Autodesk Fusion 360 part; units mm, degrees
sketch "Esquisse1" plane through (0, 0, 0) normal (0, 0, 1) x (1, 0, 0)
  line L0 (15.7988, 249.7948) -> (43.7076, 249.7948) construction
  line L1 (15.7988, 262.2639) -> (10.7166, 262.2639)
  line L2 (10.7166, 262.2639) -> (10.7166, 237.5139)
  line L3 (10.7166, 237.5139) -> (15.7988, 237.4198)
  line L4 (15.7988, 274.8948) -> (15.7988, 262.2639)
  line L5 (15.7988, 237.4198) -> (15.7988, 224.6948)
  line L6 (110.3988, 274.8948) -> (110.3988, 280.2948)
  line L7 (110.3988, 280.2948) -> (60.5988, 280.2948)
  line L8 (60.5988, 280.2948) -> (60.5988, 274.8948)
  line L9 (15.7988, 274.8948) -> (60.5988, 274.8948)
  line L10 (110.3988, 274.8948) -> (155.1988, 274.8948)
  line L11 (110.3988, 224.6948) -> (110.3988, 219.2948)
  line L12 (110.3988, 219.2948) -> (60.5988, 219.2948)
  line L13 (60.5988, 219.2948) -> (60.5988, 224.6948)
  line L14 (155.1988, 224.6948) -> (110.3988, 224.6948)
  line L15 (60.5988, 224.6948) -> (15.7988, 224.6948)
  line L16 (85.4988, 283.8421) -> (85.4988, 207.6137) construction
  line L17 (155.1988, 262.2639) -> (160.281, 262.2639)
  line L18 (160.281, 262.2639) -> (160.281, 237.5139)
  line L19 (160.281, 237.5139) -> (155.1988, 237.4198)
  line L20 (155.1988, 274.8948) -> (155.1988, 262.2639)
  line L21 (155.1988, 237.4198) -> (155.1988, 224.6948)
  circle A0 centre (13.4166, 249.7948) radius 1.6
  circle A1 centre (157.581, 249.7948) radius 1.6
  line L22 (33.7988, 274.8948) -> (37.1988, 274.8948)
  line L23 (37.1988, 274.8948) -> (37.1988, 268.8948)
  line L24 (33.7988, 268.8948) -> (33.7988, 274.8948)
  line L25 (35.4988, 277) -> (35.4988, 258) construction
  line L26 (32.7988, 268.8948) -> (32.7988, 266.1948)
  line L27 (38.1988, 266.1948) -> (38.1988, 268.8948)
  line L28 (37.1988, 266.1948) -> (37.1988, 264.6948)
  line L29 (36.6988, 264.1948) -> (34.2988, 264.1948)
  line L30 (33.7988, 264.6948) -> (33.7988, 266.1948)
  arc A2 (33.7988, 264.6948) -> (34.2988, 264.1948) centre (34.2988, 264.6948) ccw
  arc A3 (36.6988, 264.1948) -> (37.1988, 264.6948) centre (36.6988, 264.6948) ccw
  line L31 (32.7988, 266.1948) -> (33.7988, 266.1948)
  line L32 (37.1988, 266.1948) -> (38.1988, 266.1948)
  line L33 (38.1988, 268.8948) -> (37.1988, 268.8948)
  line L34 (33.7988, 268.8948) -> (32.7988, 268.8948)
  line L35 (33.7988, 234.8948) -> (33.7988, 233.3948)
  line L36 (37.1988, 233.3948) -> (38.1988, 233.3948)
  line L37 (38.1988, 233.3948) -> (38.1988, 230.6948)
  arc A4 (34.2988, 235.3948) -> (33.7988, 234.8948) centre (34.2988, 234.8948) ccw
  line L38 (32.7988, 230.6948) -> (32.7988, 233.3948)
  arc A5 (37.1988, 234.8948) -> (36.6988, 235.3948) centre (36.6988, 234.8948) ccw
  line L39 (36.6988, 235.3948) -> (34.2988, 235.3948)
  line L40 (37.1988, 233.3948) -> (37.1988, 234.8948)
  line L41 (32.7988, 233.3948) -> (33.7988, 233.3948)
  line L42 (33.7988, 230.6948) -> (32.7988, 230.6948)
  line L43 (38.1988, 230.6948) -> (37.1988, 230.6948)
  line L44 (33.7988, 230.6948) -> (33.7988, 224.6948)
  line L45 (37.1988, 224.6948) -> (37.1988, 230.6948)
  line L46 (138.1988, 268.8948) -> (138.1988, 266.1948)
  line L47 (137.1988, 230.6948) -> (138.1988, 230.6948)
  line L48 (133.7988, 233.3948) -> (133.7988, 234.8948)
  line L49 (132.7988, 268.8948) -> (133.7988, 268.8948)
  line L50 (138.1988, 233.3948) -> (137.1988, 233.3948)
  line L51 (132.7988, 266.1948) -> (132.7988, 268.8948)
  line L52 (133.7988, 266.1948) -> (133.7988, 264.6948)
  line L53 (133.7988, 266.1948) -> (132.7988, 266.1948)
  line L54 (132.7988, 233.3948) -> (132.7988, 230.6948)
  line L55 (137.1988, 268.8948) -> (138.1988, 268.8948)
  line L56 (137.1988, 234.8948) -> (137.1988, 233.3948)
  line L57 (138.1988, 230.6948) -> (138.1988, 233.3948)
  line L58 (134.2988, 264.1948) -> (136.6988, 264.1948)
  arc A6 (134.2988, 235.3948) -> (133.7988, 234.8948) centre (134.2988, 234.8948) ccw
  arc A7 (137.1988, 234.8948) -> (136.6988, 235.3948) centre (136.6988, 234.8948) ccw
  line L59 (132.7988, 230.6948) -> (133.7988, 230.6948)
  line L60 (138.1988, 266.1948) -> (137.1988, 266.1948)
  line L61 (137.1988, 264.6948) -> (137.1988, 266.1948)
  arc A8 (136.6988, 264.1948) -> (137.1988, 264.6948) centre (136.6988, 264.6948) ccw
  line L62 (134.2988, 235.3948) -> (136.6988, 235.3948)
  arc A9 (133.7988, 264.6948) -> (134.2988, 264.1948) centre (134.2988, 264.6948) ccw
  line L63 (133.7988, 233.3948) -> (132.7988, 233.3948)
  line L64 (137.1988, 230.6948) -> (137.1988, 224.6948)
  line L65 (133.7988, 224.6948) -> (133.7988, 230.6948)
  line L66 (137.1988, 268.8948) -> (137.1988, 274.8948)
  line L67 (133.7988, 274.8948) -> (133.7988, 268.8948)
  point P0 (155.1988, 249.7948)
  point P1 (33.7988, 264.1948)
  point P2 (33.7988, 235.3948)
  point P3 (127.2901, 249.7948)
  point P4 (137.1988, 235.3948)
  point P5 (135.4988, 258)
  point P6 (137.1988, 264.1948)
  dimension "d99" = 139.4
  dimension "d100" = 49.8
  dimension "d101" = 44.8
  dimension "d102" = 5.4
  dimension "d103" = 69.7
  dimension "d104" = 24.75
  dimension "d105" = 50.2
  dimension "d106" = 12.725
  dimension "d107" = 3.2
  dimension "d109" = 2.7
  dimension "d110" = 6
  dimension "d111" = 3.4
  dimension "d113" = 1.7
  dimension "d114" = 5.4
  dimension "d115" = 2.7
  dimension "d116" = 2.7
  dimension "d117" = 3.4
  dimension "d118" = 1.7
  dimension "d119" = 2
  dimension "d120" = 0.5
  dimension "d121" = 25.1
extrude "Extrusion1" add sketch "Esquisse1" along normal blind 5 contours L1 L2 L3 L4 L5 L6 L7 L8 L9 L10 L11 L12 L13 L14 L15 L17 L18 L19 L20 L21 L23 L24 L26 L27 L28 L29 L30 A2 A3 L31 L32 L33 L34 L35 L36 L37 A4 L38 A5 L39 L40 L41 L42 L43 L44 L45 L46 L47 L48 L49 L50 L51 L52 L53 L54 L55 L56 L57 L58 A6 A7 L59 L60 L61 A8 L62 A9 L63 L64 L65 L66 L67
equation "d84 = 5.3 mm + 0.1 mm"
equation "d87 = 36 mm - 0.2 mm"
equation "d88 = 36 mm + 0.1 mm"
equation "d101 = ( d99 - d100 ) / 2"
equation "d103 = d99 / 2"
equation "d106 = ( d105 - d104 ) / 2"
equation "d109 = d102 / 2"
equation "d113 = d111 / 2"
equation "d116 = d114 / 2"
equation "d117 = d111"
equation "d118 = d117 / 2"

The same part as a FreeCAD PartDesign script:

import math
import FreeCAD as App
import Part
import Sketcher
Q = App.Units.Quantity

doc = App.newDocument("Part")
body = doc.addObject("PartDesign::Body", "Body")

# Sketch on XY plane
sketch1 = body.newObject("Sketcher::SketchObject", "Sketch")
sketch1.AttachmentSupport = (doc.getObject("XY_Plane"), [""])
sketch1.MapMode = "FlatFace"
sketch1.addGeometry(Part.LineSegment(App.Vector(15.8, 274.9, 0), App.Vector(15.8, 262.3, 0)), False)
sketch1.addGeometry(Part.LineSegment(App.Vector(15.8, 262.3, 0), App.Vector(10.7, 262.3, 0)), False)
sketch1.addGeometry(Part.LineSegment(App.Vector(10.7, 262.3, 0), App.Vector(10.7, 237.5, 0)), False)
sketch1.addGeometry(Part.LineSegment(App.Vector(10.7, 237.5, 0), App.Vector(15.8, 237.4, 0)), False)
sketch1.addGeometry(Part.LineSegment(App.Vector(15.8, 237.4, 0), App.Vector(15.8, 224.7, 0)), False)
sketch1.addGeometry(Part.LineSegment(App.Vector(15.8, 224.7, 0), App.Vector(33.8, 224.7, 0)), False)
sketch1.addGeometry(Part.LineSegment(App.Vector(33.8, 224.7, 0), App.Vector(33.8, 230.7, 0)), False)
sketch1.addGeometry(Part.LineSegment(App.Vector(33.8, 230.7, 0), App.Vector(32.8, 230.7, 0)), False)
sketch1.addGeometry(Part.LineSegment(App.Vector(32.8, 230.7, 0), App.Vector(32.8, 233.4, 0)), False)
sketch1.addGeometry(Part.LineSegment(App.Vector(32.8, 233.4, 0), App.Vector(33.8, 233.4, 0)), False)
sketch1.addGeometry(Part.LineSegment(App.Vector(33.8, 233.4, 0), App.Vector(33.8, 234.9, 0)), False)
sketch1.addGeometry(Part.ArcOfCircle(Part.Circle(App.Vector(34.3, 234.9, 0), App.Vector(0, 0, 1), 0.5), math.radians(90), math.radians(180)), False)
sketch1.addGeometry(Part.LineSegment(App.Vector(34.3, 235.4, 0), App.Vector(36.7, 235.4, 0)), False)
sketch1.addGeometry(Part.ArcOfCircle(Part.Circle(App.Vector(36.7, 234.9, 0), App.Vector(0, 0, 1), 0.5), math.radians(0), math.radians(90)), False)
sketch1.addGeometry(Part.LineSegment(App.Vector(37.2, 234.9, 0), App.Vector(37.2, 233.4, 0)), False)
sketch1.addGeometry(Part.LineSegment(App.Vector(37.2, 233.4, 0), App.Vector(38.2, 233.4, 0)), False)
sketch1.addGeometry(Part.LineSegment(App.Vector(38.2, 233.4, 0), App.Vector(38.2, 230.7, 0)), False)
sketch1.addGeometry(Part.LineSegment(App.Vector(38.2, 230.7, 0), App.Vector(37.2, 230.7, 0)), False)
sketch1.addGeometry(Part.LineSegment(App.Vector(37.2, 230.7, 0), App.Vector(37.2, 224.7, 0)), False)
sketch1.addGeometry(Part.LineSegment(App.Vector(37.2, 224.7, 0), App.Vector(60.6, 224.7, 0)), False)
sketch1.addGeometry(Part.LineSegment(App.Vector(60.6, 224.7, 0), App.Vector(60.6, 219.3, 0)), False)
sketch1.addGeometry(Part.LineSegment(App.Vector(60.6, 219.3, 0), App.Vector(110.4, 219.3, 0)), False)
sketch1.addGeometry(Part.LineSegment(App.Vector(110.4, 219.3, 0), App.Vector(110.4, 224.7, 0)), False)
sketch1.addGeometry(Part.LineSegment(App.Vector(110.4, 224.7, 0), App.Vector(133.8, 224.7, 0)), False)
sketch1.addGeometry(Part.LineSegment(App.Vector(133.8, 224.7, 0), App.Vector(133.8, 230.7, 0)), False)
sketch1.addGeometry(Part.LineSegment(App.Vector(133.8, 230.7, 0), App.Vector(132.8, 230.7, 0)), False)
sketch1.addGeometry(Part.LineSegment(App.Vector(132.8, 230.7, 0), App.Vector(132.8, 233.4, 0)), False)
sketch1.addGeometry(Part.LineSegment(App.Vector(132.8, 233.4, 0), App.Vector(133.8, 233.4, 0)), False)
sketch1.addGeometry(Part.LineSegment(App.Vector(133.8, 233.4, 0), App.Vector(133.8, 234.9, 0)), False)
sketch1.addGeometry(Part.ArcOfCircle(Part.Circle(App.Vector(134.3, 234.9, 0), App.Vector(0, 0, 1), 0.5), math.radians(90), math.radians(180)), False)
sketch1.addGeometry(Part.LineSegment(App.Vector(134.3, 235.4, 0), App.Vector(136.7, 235.4, 0)), False)
sketch1.addGeometry(Part.ArcOfCircle(Part.Circle(App.Vector(136.7, 234.9, 0), App.Vector(0, 0, 1), 0.5), math.radians(0), math.radians(90)), False)
sketch1.addGeometry(Part.LineSegment(App.Vector(137.2, 234.9, 0), App.Vector(137.2, 233.4, 0)), False)
sketch1.addGeometry(Part.LineSegment(App.Vector(137.2, 233.4, 0), App.Vector(138.2, 233.4, 0)), False)
sketch1.addGeometry(Part.LineSegment(App.Vector(138.2, 233.4, 0), App.Vector(138.2, 230.7, 0)), False)
sketch1.addGeometry(Part.LineSegment(App.Vector(138.2, 230.7, 0), App.Vector(137.2, 230.7, 0)), False)
sketch1.addGeometry(Part.LineSegment(App.Vector(137.2, 230.7, 0), App.Vector(137.2, 224.7, 0)), False)
sketch1.addGeometry(Part.LineSegment(App.Vector(137.2, 224.7, 0), App.Vector(155.2, 224.7, 0)), False)
sketch1.addGeometry(Part.LineSegment(App.Vector(155.2, 224.7, 0), App.Vector(155.2, 237.4, 0)), False)
sketch1.addGeometry(Part.LineSegment(App.Vector(155.2, 237.4, 0), App.Vector(160.3, 237.5, 0)), False)
sketch1.addGeometry(Part.LineSegment(App.Vector(160.3, 237.5, 0), App.Vector(160.3, 262.3, 0)), False)
sketch1.addGeometry(Part.LineSegment(App.Vector(160.3, 262.3, 0), App.Vector(155.2, 262.3, 0)), False)
sketch1.addGeometry(Part.LineSegment(App.Vector(155.2, 262.3, 0), App.Vector(155.2, 274.9, 0)), False)
sketch1.addGeometry(Part.LineSegment(App.Vector(155.2, 274.9, 0), App.Vector(137.2, 274.9, 0)), False)
sketch1.addGeometry(Part.LineSegment(App.Vector(137.2, 274.9, 0), App.Vector(137.2, 268.9, 0)), False)
sketch1.addGeometry(Part.LineSegment(App.Vector(137.2, 268.9, 0), App.Vector(138.2, 268.9, 0)), False)
sketch1.addGeometry(Part.LineSegment(App.Vector(138.2, 268.9, 0), App.Vector(138.2, 266.2, 0)), False)
sketch1.addGeometry(Part.LineSegment(App.Vector(138.2, 266.2, 0), App.Vector(137.2, 266.2, 0)), False)
sketch1.addGeometry(Part.LineSegment(App.Vector(137.2, 266.2, 0), App.Vector(137.2, 264.7, 0)), False)
sketch1.addGeometry(Part.ArcOfCircle(Part.Circle(App.Vector(136.7, 264.7, 0), App.Vector(0, 0, 1), 0.5), math.radians(-90), math.radians(0)), False)
sketch1.addGeometry(Part.LineSegment(App.Vector(136.7, 264.2, 0), App.Vector(134.3, 264.2, 0)), False)
sketch1.addGeometry(Part.ArcOfCircle(Part.Circle(App.Vector(134.3, 264.7, 0), App.Vector(0, 0, 1), 0.5), math.radians(180), math.radians(270)), False)
sketch1.addGeometry(Part.LineSegment(App.Vector(133.8, 264.7, 0), App.Vector(133.8, 266.2, 0)), False)
sketch1.addGeometry(Part.LineSegment(App.Vector(133.8, 266.2, 0), App.Vector(132.8, 266.2, 0)), False)
sketch1.addGeometry(Part.LineSegment(App.Vector(132.8, 266.2, 0), App.Vector(132.8, 268.9, 0)), False)
sketch1.addGeometry(Part.LineSegment(App.Vector(132.8, 268.9, 0), App.Vector(133.8, 268.9, 0)), False)
sketch1.addGeometry(Part.LineSegment(App.Vector(133.8, 268.9, 0), App.Vector(133.8, 274.9, 0)), False)
sketch1.addGeometry(Part.LineSegment(App.Vector(133.8, 274.9, 0), App.Vector(110.4, 274.9, 0)), False)
sketch1.addGeometry(Part.LineSegment(App.Vector(110.4, 274.9, 0), App.Vector(110.4, 280.3, 0)), False)
sketch1.addGeometry(Part.LineSegment(App.Vector(110.4, 280.3, 0), App.Vector(60.6, 280.3, 0)), False)
sketch1.addGeometry(Part.LineSegment(App.Vector(60.6, 280.3, 0), App.Vector(60.6, 274.9, 0)), False)
sketch1.addGeometry(Part.LineSegment(App.Vector(60.6, 274.9, 0), App.Vector(37.2, 274.9, 0)), False)
sketch1.addGeometry(Part.LineSegment(App.Vector(37.2, 274.9, 0), App.Vector(37.2, 268.9, 0)), False)
sketch1.addGeometry(Part.LineSegment(App.Vector(37.2, 268.9, 0), App.Vector(38.2, 268.9, 0)), False)
sketch1.addGeometry(Part.LineSegment(App.Vector(38.2, 268.9, 0), App.Vector(38.2, 266.2, 0)), False)
sketch1.addGeometry(Part.LineSegment(App.Vector(38.2, 266.2, 0), App.Vector(37.2, 266.2, 0)), False)
sketch1.addGeometry(Part.LineSegment(App.Vector(37.2, 266.2, 0), App.Vector(37.2, 264.7, 0)), False)
sketch1.addGeometry(Part.ArcOfCircle(Part.Circle(App.Vector(36.7, 264.7, 0), App.Vector(0, 0, 1), 0.5), math.radians(-90), math.radians(0)), False)
sketch1.addGeometry(Part.LineSegment(App.Vector(36.7, 264.2, 0), App.Vector(34.3, 264.2, 0)), False)
sketch1.addGeometry(Part.ArcOfCircle(Part.Circle(App.Vector(34.3, 264.7, 0), App.Vector(0, 0, 1), 0.5), math.radians(180), math.radians(270)), False)
sketch1.addGeometry(Part.LineSegment(App.Vector(33.8, 264.7, 0), App.Vector(33.8, 266.2, 0)), False)
sketch1.addGeometry(Part.LineSegment(App.Vector(33.8, 266.2, 0), App.Vector(32.8, 266.2, 0)), False)
sketch1.addGeometry(Part.LineSegment(App.Vector(32.8, 266.2, 0), App.Vector(32.8, 268.9, 0)), False)
sketch1.addGeometry(Part.LineSegment(App.Vector(32.8, 268.9, 0), App.Vector(33.8, 268.9, 0)), False)
sketch1.addGeometry(Part.LineSegment(App.Vector(33.8, 268.9, 0), App.Vector(33.8, 274.9, 0)), False)
sketch1.addGeometry(Part.LineSegment(App.Vector(33.8, 274.9, 0), App.Vector(15.8, 274.9, 0)), False)
sketch1.addGeometry(Part.Circle(App.Vector(13.4, 249.8, 0), App.Vector(0, 0, 1), 1.6), False)
sketch1.addGeometry(Part.Circle(App.Vector(157.6, 249.8, 0), App.Vector(0, 0, 1), 1.6), False)
sketch1.addConstraint(Sketcher.Constraint("Coincident", 0, 2, 1, 1))
sketch1.addConstraint(Sketcher.Constraint("Coincident", 1, 2, 2, 1))
sketch1.addConstraint(Sketcher.Constraint("Coincident", 2, 2, 3, 1))
sketch1.addConstraint(Sketcher.Constraint("Coincident", 3, 2, 4, 1))
sketch1.addConstraint(Sketcher.Constraint("Coincident", 4, 2, 5, 1))
sketch1.addConstraint(Sketcher.Constraint("Coincident", 5, 2, 6, 1))
sketch1.addConstraint(Sketcher.Constraint("Coincident", 6, 2, 7, 1))
sketch1.addConstraint(Sketcher.Constraint("Coincident", 7, 2, 8, 1))
sketch1.addConstraint(Sketcher.Constraint("Coincident", 8, 2, 9, 1))
sketch1.addConstraint(Sketcher.Constraint("Coincident", 9, 2, 10, 1))
sketch1.addConstraint(Sketcher.Constraint("Tangent", 10, 2, 11, 2))
sketch1.addConstraint(Sketcher.Constraint("Tangent", 11, 1, 12, 1))
sketch1.addConstraint(Sketcher.Constraint("Tangent", 12, 2, 13, 2))
sketch1.addConstraint(Sketcher.Constraint("Tangent", 13, 1, 14, 1))
sketch1.addConstraint(Sketcher.Constraint("Coincident", 14, 2, 15, 1))
sketch1.addConstraint(Sketcher.Constraint("Coincident", 15, 2, 16, 1))
sketch1.addConstraint(Sketcher.Constraint("Coincident", 16, 2, 17, 1))
sketch1.addConstraint(Sketcher.Constraint("Coincident", 17, 2, 18, 1))
sketch1.addConstraint(Sketcher.Constraint("Coincident", 18, 2, 19, 1))
sketch1.addConstraint(Sketcher.Constraint("Coincident", 19, 2, 20, 1))
sketch1.addConstraint(Sketcher.Constraint("Coincident", 20, 2, 21, 1))
sketch1.addConstraint(Sketcher.Constraint("Coincident", 21, 2, 22, 1))
sketch1.addConstraint(Sketcher.Constraint("Coincident", 22, 2, 23, 1))
sketch1.addConstraint(Sketcher.Constraint("Coincident", 23, 2, 24, 1))
sketch1.addConstraint(Sketcher.Constraint("Coincident", 24, 2, 25, 1))
sketch1.addConstraint(Sketcher.Constraint("Coincident", 25, 2, 26, 1))
sketch1.addConstraint(Sketcher.Constraint("Coincident", 26, 2, 27, 1))
sketch1.addConstraint(Sketcher.Constraint("Coincident", 27, 2, 28, 1))
sketch1.addConstraint(Sketcher.Constraint("Tangent", 28, 2, 29, 2))
sketch1.addConstraint(Sketcher.Constraint("Tangent", 29, 1, 30, 1))
sketch1.addConstraint(Sketcher.Constraint("Tangent", 30, 2, 31, 2))
sketch1.addConstraint(Sketcher.Constraint("Tangent", 31, 1, 32, 1))
sketch1.addConstraint(Sketcher.Constraint("Coincident", 32, 2, 33, 1))
sketch1.addConstraint(Sketcher.Constraint("Coincident", 33, 2, 34, 1))
sketch1.addConstraint(Sketcher.Constraint("Coincident", 34, 2, 35, 1))
sketch1.addConstraint(Sketcher.Constraint("Coincident", 35, 2, 36, 1))
sketch1.addConstraint(Sketcher.Constraint("Coincident", 36, 2, 37, 1))
sketch1.addConstraint(Sketcher.Constraint("Coincident", 37, 2, 38, 1))
sketch1.addConstraint(Sketcher.Constraint("Coincident", 38, 2, 39, 1))
sketch1.addConstraint(Sketcher.Constraint("Coincident", 39, 2, 40, 1))
sketch1.addConstraint(Sketcher.Constraint("Coincident", 40, 2, 41, 1))
sketch1.addConstraint(Sketcher.Constraint("Coincident", 41, 2, 42, 1))
sketch1.addConstraint(Sketcher.Constraint("Coincident", 42, 2, 43, 1))
sketch1.addConstraint(Sketcher.Constraint("Coincident", 43, 2, 44, 1))
sketch1.addConstraint(Sketcher.Constraint("Coincident", 44, 2, 45, 1))
sketch1.addConstraint(Sketcher.Constraint("Coincident", 45, 2, 46, 1))
sketch1.addConstraint(Sketcher.Constraint("Coincident", 46, 2, 47, 1))
sketch1.addConstraint(Sketcher.Constraint("Coincident", 47, 2, 48, 1))
sketch1.addConstraint(Sketcher.Constraint("Tangent", 48, 2, 49, 2))
sketch1.addConstraint(Sketcher.Constraint("Tangent", 49, 1, 50, 1))
sketch1.addConstraint(Sketcher.Constraint("Tangent", 50, 2, 51, 2))
sketch1.addConstraint(Sketcher.Constraint("Tangent", 51, 1, 52, 1))
sketch1.addConstraint(Sketcher.Constraint("Coincident", 52, 2, 53, 1))
sketch1.addConstraint(Sketcher.Constraint("Coincident", 53, 2, 54, 1))
sketch1.addConstraint(Sketcher.Constraint("Coincident", 54, 2, 55, 1))
sketch1.addConstraint(Sketcher.Constraint("Coincident", 55, 2, 56, 1))
sketch1.addConstraint(Sketcher.Constraint("Coincident", 56, 2, 57, 1))
sketch1.addConstraint(Sketcher.Constraint("Coincident", 57, 2, 58, 1))
sketch1.addConstraint(Sketcher.Constraint("Coincident", 58, 2, 59, 1))
sketch1.addConstraint(Sketcher.Constraint("Coincident", 59, 2, 60, 1))
sketch1.addConstraint(Sketcher.Constraint("Coincident", 60, 2, 61, 1))
sketch1.addConstraint(Sketcher.Constraint("Coincident", 61, 2, 62, 1))
sketch1.addConstraint(Sketcher.Constraint("Coincident", 62, 2, 63, 1))
sketch1.addConstraint(Sketcher.Constraint("Coincident", 63, 2, 64, 1))
sketch1.addConstraint(Sketcher.Constraint("Coincident", 64, 2, 65, 1))
sketch1.addConstraint(Sketcher.Constraint("Coincident", 65, 2, 66, 1))
sketch1.addConstraint(Sketcher.Constraint("Tangent", 66, 2, 67, 2))
sketch1.addConstraint(Sketcher.Constraint("Tangent", 67, 1, 68, 1))
sketch1.addConstraint(Sketcher.Constraint("Tangent", 68, 2, 69, 2))
sketch1.addConstraint(Sketcher.Constraint("Tangent", 69, 1, 70, 1))
sketch1.addConstraint(Sketcher.Constraint("Coincident", 70, 2, 71, 1))
sketch1.addConstraint(Sketcher.Constraint("Coincident", 71, 2, 72, 1))
sketch1.addConstraint(Sketcher.Constraint("Coincident", 72, 2, 73, 1))
sketch1.addConstraint(Sketcher.Constraint("Coincident", 73, 2, 74, 1))
sketch1.addConstraint(Sketcher.Constraint("Coincident", 74, 2, 75, 1))
sketch1.addConstraint(Sketcher.Constraint("Coincident", 75, 2, 0, 1))
sketch1.addConstraint(Sketcher.Constraint("Vertical", 0))
sketch1.addConstraint(Sketcher.Constraint("Horizontal", 1))
sketch1.addConstraint(Sketcher.Constraint("Vertical", 2))
sketch1.addConstraint(Sketcher.Constraint("Vertical", 4))
sketch1.addConstraint(Sketcher.Constraint("Horizontal", 5))
sketch1.addConstraint(Sketcher.Constraint("Vertical", 6))
sketch1.addConstraint(Sketcher.Constraint("Horizontal", 7))
sketch1.addConstraint(Sketcher.Constraint("Vertical", 8))
sketch1.addConstraint(Sketcher.Constraint("Horizontal", 9))
sketch1.addConstraint(Sketcher.Constraint("Vertical", 10))
sketch1.addConstraint(Sketcher.Constraint("Horizontal", 12))
sketch1.addConstraint(Sketcher.Constraint("Vertical", 14))
sketch1.addConstraint(Sketcher.Constraint("Horizontal", 15))
sketch1.addConstraint(Sketcher.Constraint("Vertical", 16))
sketch1.addConstraint(Sketcher.Constraint("Horizontal", 17))
sketch1.addConstraint(Sketcher.Constraint("Vertical", 18))
sketch1.addConstraint(Sketcher.Constraint("Horizontal", 19))
sketch1.addConstraint(Sketcher.Constraint("Vertical", 20))
sketch1.addConstraint(Sketcher.Constraint("Horizontal", 21))
sketch1.addConstraint(Sketcher.Constraint("Vertical", 22))
sketch1.addConstraint(Sketcher.Constraint("Horizontal", 23))
sketch1.addConstraint(Sketcher.Constraint("Vertical", 24))
sketch1.addConstraint(Sketcher.Constraint("Horizontal", 25))
sketch1.addConstraint(Sketcher.Constraint("Vertical", 26))
sketch1.addConstraint(Sketcher.Constraint("Horizontal", 27))
sketch1.addConstraint(Sketcher.Constraint("Vertical", 28))
sketch1.addConstraint(Sketcher.Constraint("Horizontal", 30))
sketch1.addConstraint(Sketcher.Constraint("Vertical", 32))
sketch1.addConstraint(Sketcher.Constraint("Horizontal", 33))
sketch1.addConstraint(Sketcher.Constraint("Vertical", 34))
sketch1.addConstraint(Sketcher.Constraint("Horizontal", 35))
sketch1.addConstraint(Sketcher.Constraint("Vertical", 36))
sketch1.addConstraint(Sketcher.Constraint("Horizontal", 37))
sketch1.addConstraint(Sketcher.Constraint("Vertical", 38))
sketch1.addConstraint(Sketcher.Constraint("Vertical", 40))
sketch1.addConstraint(Sketcher.Constraint("Horizontal", 41))
sketch1.addConstraint(Sketcher.Constraint("Vertical", 42))
sketch1.addConstraint(Sketcher.Constraint("Horizontal", 43))
sketch1.addConstraint(Sketcher.Constraint("Vertical", 44))
sketch1.addConstraint(Sketcher.Constraint("Horizontal", 45))
sketch1.addConstraint(Sketcher.Constraint("Vertical", 46))
sketch1.addConstraint(Sketcher.Constraint("Horizontal", 47))
sketch1.addConstraint(Sketcher.Constraint("Vertical", 48))
sketch1.addConstraint(Sketcher.Constraint("Horizontal", 50))
sketch1.addConstraint(Sketcher.Constraint("Vertical", 52))
sketch1.addConstraint(Sketcher.Constraint("Horizontal", 53))
sketch1.addConstraint(Sketcher.Constraint("Vertical", 54))
sketch1.addConstraint(Sketcher.Constraint("Horizontal", 55))
sketch1.addConstraint(Sketcher.Constraint("Vertical", 56))
sketch1.addConstraint(Sketcher.Constraint("Horizontal", 57))
sketch1.addConstraint(Sketcher.Constraint("Vertical", 58))
sketch1.addConstraint(Sketcher.Constraint("Horizontal", 59))
sketch1.addConstraint(Sketcher.Constraint("Vertical", 60))
sketch1.addConstraint(Sketcher.Constraint("Horizontal", 61))
sketch1.addConstraint(Sketcher.Constraint("Vertical", 62))
sketch1.addConstraint(Sketcher.Constraint("Horizontal", 63))
sketch1.addConstraint(Sketcher.Constraint("Vertical", 64))
sketch1.addConstraint(Sketcher.Constraint("Horizontal", 65))
sketch1.addConstraint(Sketcher.Constraint("Vertical", 66))
sketch1.addConstraint(Sketcher.Constraint("Horizontal", 68))
sketch1.addConstraint(Sketcher.Constraint("Vertical", 70))
sketch1.addConstraint(Sketcher.Constraint("Horizontal", 71))
sketch1.addConstraint(Sketcher.Constraint("Vertical", 72))
sketch1.addConstraint(Sketcher.Constraint("Horizontal", 73))
sketch1.addConstraint(Sketcher.Constraint("Vertical", 74))
sketch1.addConstraint(Sketcher.Constraint("Horizontal", 75))
sketch1.addConstraint(Sketcher.Constraint("Equal", 11, 13))
sketch1.addConstraint(Sketcher.Constraint("Equal", 13, 29))
sketch1.addConstraint(Sketcher.Constraint("Equal", 29, 31))
sketch1.addConstraint(Sketcher.Constraint("Equal", 31, 49))
sketch1.addConstraint(Sketcher.Constraint("Equal", 49, 51))
sketch1.addConstraint(Sketcher.Constraint("Equal", 51, 67))
sketch1.addConstraint(Sketcher.Constraint("Equal", 67, 69))
sketch1.addConstraint(Sketcher.Constraint("Equal", 76, 77))
sketch1.addConstraint(Sketcher.Constraint("Horizontal", 13, 3, 29, 3))
sketch1.addConstraint(Sketcher.Constraint("Horizontal", 51, 3, 67, 3))
sketch1.addConstraint(Sketcher.Constraint("Horizontal", 76, 3, 77, 3))
sketch1.addConstraint(Sketcher.Constraint("Horizontal", 9, 2, 14, 2))
sketch1.addConstraint(Sketcher.Constraint("Horizontal", 7, 2, 16, 2))
sketch1.addConstraint(Sketcher.Constraint("Horizontal", 5, 2, 18, 2))
sketch1.addConstraint(Sketcher.Constraint("Horizontal", 19, 2, 22, 2))
sketch1.addConstraint(Sketcher.Constraint("Horizontal", 17, 2, 24, 2))
sketch1.addConstraint(Sketcher.Constraint("Horizontal", 15, 2, 26, 2))
sketch1.addConstraint(Sketcher.Constraint("Horizontal", 27, 2, 32, 2))
sketch1.addConstraint(Sketcher.Constraint("Horizontal", 25, 2, 34, 2))
sketch1.addConstraint(Sketcher.Constraint("Horizontal", 23, 2, 36, 2))
sketch1.addConstraint(Sketcher.Constraint("Horizontal", 3, 2, 38, 2))
sketch1.addConstraint(Sketcher.Constraint("Horizontal", 2, 2, 39, 2))
sketch1.addConstraint(Sketcher.Constraint("Horizontal", 1, 2, 40, 2))
sketch1.addConstraint(Sketcher.Constraint("Horizontal", 47, 2, 52, 2))
sketch1.addConstraint(Sketcher.Constraint("Horizontal", 45, 2, 54, 2))
sketch1.addConstraint(Sketcher.Constraint("Horizontal", 43, 2, 56, 2))
sketch1.addConstraint(Sketcher.Constraint("Horizontal", 57, 2, 60, 2))
sketch1.addConstraint(Sketcher.Constraint("Horizontal", 55, 2, 62, 2))
sketch1.addConstraint(Sketcher.Constraint("Horizontal", 53, 2, 64, 2))
sketch1.addConstraint(Sketcher.Constraint("Horizontal", 65, 2, 70, 2))
sketch1.addConstraint(Sketcher.Constraint("Horizontal", 63, 2, 72, 2))
sketch1.addConstraint(Sketcher.Constraint("Horizontal", 61, 2, 74, 2))
sketch1.addConstraint(Sketcher.Constraint("Vertical", 31, 3, 49, 3))
sketch1.addConstraint(Sketcher.Constraint("Vertical", 29, 3, 51, 3))
sketch1.addConstraint(Sketcher.Constraint("Vertical", 13, 3, 67, 3))
sketch1.addConstraint(Sketcher.Constraint("Vertical", 11, 3, 69, 3))
sketch1.addConstraint(Sketcher.Constraint("Vertical", 0, 2, 3, 2))
sketch1.addConstraint(Sketcher.Constraint("Vertical", 6, 2, 9, 2))
sketch1.addConstraint(Sketcher.Constraint("Vertical", 14, 2, 17, 2))
sketch1.addConstraint(Sketcher.Constraint("Vertical", 24, 2, 27, 2))
sketch1.addConstraint(Sketcher.Constraint("Vertical", 32, 2, 35, 2))
sketch1.addConstraint(Sketcher.Constraint("Vertical", 38, 2, 41, 2))
sketch1.addConstraint(Sketcher.Constraint("Vertical", 36, 2, 43, 2))
sketch1.addConstraint(Sketcher.Constraint("Vertical", 34, 2, 45, 2))
sketch1.addConstraint(Sketcher.Constraint("Vertical", 26, 2, 53, 2))
sketch1.addConstraint(Sketcher.Constraint("Vertical", 52, 2, 55, 2))
sketch1.addConstraint(Sketcher.Constraint("Vertical", 22, 2, 57, 2))
sketch1.addConstraint(Sketcher.Constraint("Vertical", 20, 2, 59, 2))
sketch1.addConstraint(Sketcher.Constraint("Vertical", 18, 2, 61, 2))
sketch1.addConstraint(Sketcher.Constraint("Vertical", 16, 2, 63, 2))
sketch1.addConstraint(Sketcher.Constraint("Vertical", 8, 2, 71, 2))
sketch1.addConstraint(Sketcher.Constraint("Vertical", 70, 2, 73, 2))
sketch1.addConstraint(Sketcher.Constraint("Equal", 9, 15))
sketch1.addConstraint(Sketcher.Constraint("Equal", 19, 23))
sketch1.addConstraint(Sketcher.Constraint("Equal", 17, 25))
sketch1.addConstraint(Sketcher.Constraint("Equal", 12, 30))
sketch1.addConstraint(Sketcher.Constraint("Equal", 27, 33))
sketch1.addConstraint(Sketcher.Constraint("Equal", 5, 37))
sketch1.addConstraint(Sketcher.Constraint("Equal", 1, 41))
sketch1.addConstraint(Sketcher.Constraint("Equal", 36, 44))
sketch1.addConstraint(Sketcher.Constraint("Equal", 34, 46))
sketch1.addConstraint(Sketcher.Constraint("Equal", 32, 48))
sketch1.addConstraint(Sketcher.Constraint("Equal", 22, 58))
sketch1.addConstraint(Sketcher.Constraint("Diameter", 76, 3.2))
sketch1.addConstraint(Sketcher.Constraint("Radius", 11, 0.5))
sketch1.addConstraint(Sketcher.Constraint("DistanceY", 6, 1, 6, 2, 6.0))
sketch1.addConstraint(Sketcher.Constraint("DistanceX", 21, 1, 21, 2, 49.8))
sketch1.addConstraint(Sketcher.Constraint("DistanceY", 8, 1, 8, 2, 2.7))
sketch1.addConstraint(Sketcher.Constraint("DistanceY", 20, 2, 20, 1, 5.4))
sketch1.addConstraint(Sketcher.Constraint("DistanceY", 2, 2, 2, 1, 24.75))
sketch1.addConstraint(Sketcher.Constraint("DistanceX", 5, 1, 5, 2, 18.0))
sketch1.addConstraint(Sketcher.Constraint("DistanceX", 7, 2, 7, 1, 1.0))
sketch1.addConstraint(Sketcher.Constraint("DistanceY", 4, 2, 4, 1, 12.725))
sketch1.addConstraint(Sketcher.Constraint("DistanceX", 12, 1, 12, 2, 2.4))
sketch1.addConstraint(Sketcher.Constraint("DistanceX", 19, 1, 19, 2, 23.4))
sketch1.addConstraint(Sketcher.Constraint("DistanceY", 10, 1, 10, 2, 1.5))
sketch1.addConstraint(Sketcher.Constraint("Angle", 3, Q("-1.0607 deg")))
sketch1.addConstraint(Sketcher.Constraint("DistanceY", 0, 2, 0, 1, 12.631))
sketch1.addConstraint(Sketcher.Constraint("Distance", 3, 5.083))
sketch1.addConstraint(Sketcher.Constraint("DistanceX", -1, 1, 77, 3, 157.581))
sketch1.addConstraint(Sketcher.Constraint("DistanceY", -1, 1, 0, 2, 262.264))
sketch1.addConstraint(Sketcher.Constraint("DistanceX", -1, 1, 39, 2, 160.281))
sketch1.addConstraint(Sketcher.Constraint("DistanceX", -1, 1, 76, 3, 13.4166))
sketch1.addConstraint(Sketcher.Constraint("DistanceY", -1, 1, 76, 3, 249.7948))
pad1 = body.newObject("PartDesign::Pad", "Pad")
pad1.Profile = sketch1
pad1.Length = 5

doc.recompute()
